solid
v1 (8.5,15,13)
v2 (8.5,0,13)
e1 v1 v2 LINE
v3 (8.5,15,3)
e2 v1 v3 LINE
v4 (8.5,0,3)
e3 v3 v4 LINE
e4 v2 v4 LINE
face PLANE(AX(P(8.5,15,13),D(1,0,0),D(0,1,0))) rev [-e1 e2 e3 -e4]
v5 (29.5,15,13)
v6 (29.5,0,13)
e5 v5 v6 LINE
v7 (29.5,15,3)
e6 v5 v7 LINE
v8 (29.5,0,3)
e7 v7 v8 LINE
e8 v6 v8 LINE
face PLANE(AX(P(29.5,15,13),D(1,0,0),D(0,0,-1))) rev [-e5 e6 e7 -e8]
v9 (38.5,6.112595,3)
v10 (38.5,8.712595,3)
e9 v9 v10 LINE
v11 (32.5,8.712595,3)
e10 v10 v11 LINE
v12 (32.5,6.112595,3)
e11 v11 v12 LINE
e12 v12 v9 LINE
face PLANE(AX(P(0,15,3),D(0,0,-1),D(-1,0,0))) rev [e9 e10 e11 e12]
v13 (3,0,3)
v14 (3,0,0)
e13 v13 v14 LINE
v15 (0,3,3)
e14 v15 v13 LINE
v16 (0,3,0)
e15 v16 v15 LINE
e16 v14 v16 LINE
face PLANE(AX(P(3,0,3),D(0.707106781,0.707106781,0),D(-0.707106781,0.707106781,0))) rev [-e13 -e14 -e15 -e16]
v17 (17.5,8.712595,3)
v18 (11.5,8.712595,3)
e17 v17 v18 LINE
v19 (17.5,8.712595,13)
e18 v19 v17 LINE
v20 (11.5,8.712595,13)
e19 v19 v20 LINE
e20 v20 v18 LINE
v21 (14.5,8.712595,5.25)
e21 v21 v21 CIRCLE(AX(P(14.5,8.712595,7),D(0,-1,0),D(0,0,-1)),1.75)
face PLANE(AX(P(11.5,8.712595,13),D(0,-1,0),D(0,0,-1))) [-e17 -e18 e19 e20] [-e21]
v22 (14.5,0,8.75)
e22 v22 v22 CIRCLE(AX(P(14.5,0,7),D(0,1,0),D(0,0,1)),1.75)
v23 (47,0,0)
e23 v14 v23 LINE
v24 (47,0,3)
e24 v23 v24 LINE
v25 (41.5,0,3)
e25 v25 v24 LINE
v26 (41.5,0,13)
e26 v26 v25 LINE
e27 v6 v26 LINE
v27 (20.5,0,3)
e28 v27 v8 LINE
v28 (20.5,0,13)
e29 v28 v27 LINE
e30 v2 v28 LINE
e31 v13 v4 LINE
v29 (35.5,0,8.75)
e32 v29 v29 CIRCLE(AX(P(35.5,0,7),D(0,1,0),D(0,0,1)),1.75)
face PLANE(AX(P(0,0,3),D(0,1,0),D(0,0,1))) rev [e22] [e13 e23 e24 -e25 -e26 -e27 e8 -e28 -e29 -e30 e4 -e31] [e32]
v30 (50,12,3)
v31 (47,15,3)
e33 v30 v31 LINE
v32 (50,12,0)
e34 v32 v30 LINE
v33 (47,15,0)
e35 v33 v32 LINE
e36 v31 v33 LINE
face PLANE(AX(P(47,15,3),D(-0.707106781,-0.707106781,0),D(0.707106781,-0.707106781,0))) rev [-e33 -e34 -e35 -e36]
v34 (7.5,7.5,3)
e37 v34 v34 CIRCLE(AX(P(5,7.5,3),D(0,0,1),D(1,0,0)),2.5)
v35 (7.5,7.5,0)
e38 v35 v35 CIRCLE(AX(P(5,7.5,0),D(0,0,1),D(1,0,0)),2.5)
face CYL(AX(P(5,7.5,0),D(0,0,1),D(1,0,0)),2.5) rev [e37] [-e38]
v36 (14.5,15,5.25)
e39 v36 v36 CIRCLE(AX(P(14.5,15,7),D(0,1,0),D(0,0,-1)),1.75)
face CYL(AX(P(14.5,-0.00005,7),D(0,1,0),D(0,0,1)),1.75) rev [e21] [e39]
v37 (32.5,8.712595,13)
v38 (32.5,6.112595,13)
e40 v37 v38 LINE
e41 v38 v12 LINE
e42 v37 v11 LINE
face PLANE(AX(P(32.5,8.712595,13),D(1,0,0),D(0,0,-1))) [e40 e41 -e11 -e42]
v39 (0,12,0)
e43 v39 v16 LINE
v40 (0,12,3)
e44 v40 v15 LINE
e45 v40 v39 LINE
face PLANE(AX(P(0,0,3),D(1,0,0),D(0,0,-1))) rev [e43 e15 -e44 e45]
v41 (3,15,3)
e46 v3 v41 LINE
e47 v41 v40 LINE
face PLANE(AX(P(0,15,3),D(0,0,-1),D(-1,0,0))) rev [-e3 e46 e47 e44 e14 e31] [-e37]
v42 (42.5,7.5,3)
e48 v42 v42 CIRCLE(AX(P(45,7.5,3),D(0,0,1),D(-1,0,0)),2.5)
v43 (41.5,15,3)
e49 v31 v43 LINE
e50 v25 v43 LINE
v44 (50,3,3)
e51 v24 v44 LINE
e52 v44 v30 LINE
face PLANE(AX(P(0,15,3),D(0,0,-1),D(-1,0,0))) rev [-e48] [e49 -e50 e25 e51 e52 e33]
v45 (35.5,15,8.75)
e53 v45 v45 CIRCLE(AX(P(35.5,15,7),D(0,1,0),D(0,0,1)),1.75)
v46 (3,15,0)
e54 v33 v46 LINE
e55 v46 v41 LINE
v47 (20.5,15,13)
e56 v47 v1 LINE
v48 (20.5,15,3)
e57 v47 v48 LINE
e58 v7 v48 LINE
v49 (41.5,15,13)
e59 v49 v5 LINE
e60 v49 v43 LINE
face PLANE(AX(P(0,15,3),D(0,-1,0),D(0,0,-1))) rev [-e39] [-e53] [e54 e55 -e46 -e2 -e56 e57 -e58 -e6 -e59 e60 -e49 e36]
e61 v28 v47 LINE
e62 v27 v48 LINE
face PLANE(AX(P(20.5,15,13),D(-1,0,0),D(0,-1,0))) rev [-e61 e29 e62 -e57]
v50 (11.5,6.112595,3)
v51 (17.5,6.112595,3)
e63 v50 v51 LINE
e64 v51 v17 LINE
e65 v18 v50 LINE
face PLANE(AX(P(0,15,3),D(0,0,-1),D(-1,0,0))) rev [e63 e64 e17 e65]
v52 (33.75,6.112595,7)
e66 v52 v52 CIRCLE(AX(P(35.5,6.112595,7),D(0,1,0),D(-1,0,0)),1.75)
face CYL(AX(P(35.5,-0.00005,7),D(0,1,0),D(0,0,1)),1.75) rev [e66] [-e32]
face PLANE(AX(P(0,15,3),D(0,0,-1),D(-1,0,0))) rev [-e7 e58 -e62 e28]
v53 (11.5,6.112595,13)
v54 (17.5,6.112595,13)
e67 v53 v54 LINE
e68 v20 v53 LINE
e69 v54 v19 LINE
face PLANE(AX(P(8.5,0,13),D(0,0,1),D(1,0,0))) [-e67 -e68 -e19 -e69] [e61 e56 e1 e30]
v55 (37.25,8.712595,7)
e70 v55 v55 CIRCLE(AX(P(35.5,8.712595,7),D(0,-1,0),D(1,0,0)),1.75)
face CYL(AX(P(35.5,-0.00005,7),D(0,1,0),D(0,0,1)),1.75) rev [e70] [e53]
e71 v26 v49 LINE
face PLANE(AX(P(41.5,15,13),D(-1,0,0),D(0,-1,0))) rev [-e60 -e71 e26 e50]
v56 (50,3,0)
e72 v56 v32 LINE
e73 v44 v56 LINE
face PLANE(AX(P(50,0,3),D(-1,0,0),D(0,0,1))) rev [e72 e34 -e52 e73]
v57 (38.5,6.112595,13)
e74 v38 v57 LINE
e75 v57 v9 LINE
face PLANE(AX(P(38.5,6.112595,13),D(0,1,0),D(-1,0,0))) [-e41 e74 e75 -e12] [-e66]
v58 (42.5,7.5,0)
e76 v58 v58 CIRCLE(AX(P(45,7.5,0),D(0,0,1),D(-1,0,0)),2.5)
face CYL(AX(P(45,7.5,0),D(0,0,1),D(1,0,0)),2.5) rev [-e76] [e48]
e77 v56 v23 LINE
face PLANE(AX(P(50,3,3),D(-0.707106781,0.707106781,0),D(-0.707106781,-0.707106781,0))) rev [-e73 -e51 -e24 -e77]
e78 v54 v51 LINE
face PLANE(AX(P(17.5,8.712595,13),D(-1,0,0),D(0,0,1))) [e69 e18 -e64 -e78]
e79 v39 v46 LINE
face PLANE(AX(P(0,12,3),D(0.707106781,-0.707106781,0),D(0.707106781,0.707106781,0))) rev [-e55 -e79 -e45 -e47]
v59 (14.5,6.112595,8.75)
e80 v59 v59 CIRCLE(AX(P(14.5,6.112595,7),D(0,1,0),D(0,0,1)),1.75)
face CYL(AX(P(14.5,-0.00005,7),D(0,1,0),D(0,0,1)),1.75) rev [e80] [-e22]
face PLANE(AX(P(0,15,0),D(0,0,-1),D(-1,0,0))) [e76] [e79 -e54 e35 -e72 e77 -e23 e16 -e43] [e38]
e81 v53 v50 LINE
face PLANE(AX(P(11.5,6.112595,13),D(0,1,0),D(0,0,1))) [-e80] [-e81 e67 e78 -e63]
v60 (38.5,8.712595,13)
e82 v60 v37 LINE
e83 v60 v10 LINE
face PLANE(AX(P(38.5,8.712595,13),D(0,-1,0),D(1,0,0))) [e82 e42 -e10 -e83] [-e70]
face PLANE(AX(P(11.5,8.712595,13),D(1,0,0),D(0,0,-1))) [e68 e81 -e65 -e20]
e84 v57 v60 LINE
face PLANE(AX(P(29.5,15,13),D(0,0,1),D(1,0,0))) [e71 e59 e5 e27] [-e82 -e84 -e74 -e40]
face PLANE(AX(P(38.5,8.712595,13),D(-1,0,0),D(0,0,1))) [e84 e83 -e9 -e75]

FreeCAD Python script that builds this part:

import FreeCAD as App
import Part
import Sketcher
Q = App.Units.Quantity


def edges_at(feature, points):
    """Names of the edges that pass closest to the given points."""
    edges = feature.Shape.Edges
    near = lambda p: min(range(len(edges)), key=lambda i: edges[i].distToShape(Part.Vertex(*p))[0])
    return sorted({f"Edge{near(p) + 1}" for p in points})

doc = App.newDocument("Part")
params = doc.addObject("Spreadsheet::Sheet", "Params")
for row, (alias, value) in enumerate([
    ("sketch1_width", "50 mm"),
    ("sketch1_height", "15 mm"),
    ("pad1_length", "3 mm"),
    ("sketch2_diameter", "5 mm"),
    ("sketch3_width", "12 mm"),
    ("sketch3_width2", "6 mm"),
    ("sketch3_height", "15 mm"),
    ("sketch3_height2", "2.6 mm"),
    ("pad2_length", "10 mm"),
    ("sketch4_diameter", "3.5 mm"),
    ("chamfer_size", "3 mm"),
], start=1):
    params.set(f"A{row}", alias)
    params.set(f"B{row}", "=" + value)
    params.setAlias(f"B{row}", alias)

body = doc.addObject("PartDesign::Body", "Body")

# Sketch on XY plane
sketch1 = body.newObject("Sketcher::SketchObject", "Sketch")
sketch1.AttachmentSupport = (doc.getObject("XY_Plane"), [""])
sketch1.MapMode = "FlatFace"
sketch1.addGeometry(Part.LineSegment(App.Vector(0, 15, 0), App.Vector(0, 0, 0)), False)
sketch1.addGeometry(Part.LineSegment(App.Vector(0, 0, 0), App.Vector(50, 0, 0)), False)
sketch1.addGeometry(Part.LineSegment(App.Vector(50, 0, 0), App.Vector(50, 15, 0)), False)
sketch1.addGeometry(Part.LineSegment(App.Vector(50, 15, 0), App.Vector(0, 15, 0)), False)
sketch1.addConstraint(Sketcher.Constraint("Coincident", 0, 2, 1, 1))
sketch1.addConstraint(Sketcher.Constraint("Coincident", 1, 2, 2, 1))
sketch1.addConstraint(Sketcher.Constraint("Coincident", 2, 2, 3, 1))
sketch1.addConstraint(Sketcher.Constraint("Coincident", 3, 2, 0, 1))
sketch1.addConstraint(Sketcher.Constraint("Vertical", 0))
sketch1.addConstraint(Sketcher.Constraint("Horizontal", 1))
sketch1.addConstraint(Sketcher.Constraint("Vertical", 2))
sketch1.addConstraint(Sketcher.Constraint("Horizontal", 3))
sketch1.addConstraint(Sketcher.Constraint("Coincident", 0, 2, -1, 1))
sketch1.addConstraint(Sketcher.Constraint("DistanceX", 1, 1, 1, 2, Q("50 mm")))
sketch1.addConstraint(Sketcher.Constraint("DistanceY", 0, 2, 0, 1, Q("15 mm")))
sketch1.setExpression("Constraints[9]", "Params.sketch1_width")
sketch1.setExpression("Constraints[10]", "Params.sketch1_height")
pad1 = body.newObject("PartDesign::Pad", "Pad")
pad1.Profile = sketch1
pad1.setExpression("Length", "Params.pad1_length")

# Sketch on XY plane
sketch2 = body.newObject("Sketcher::SketchObject", "Sketch001")
sketch2.AttachmentSupport = (doc.getObject("XY_Plane"), [""])
sketch2.MapMode = "FlatFace"
sketch2.AttachmentOffset = App.Placement(App.Vector(0, 0, 3), App.Rotation())
sketch2.addGeometry(Part.Circle(App.Vector(5, 7.5, 0), App.Vector(0, 0, 1), 2.5), False)
sketch2.addGeometry(Part.Circle(App.Vector(45, 7.5, 0), App.Vector(0, 0, 1), 2.5), False)
sketch2.addConstraint(Sketcher.Constraint("Equal", 0, 1))
sketch2.addConstraint(Sketcher.Constraint("Horizontal", 0, 3, 1, 3))
sketch2.addConstraint(Sketcher.Constraint("Diameter", 0, Q("5 mm")))
sketch2.addConstraint(Sketcher.Constraint("DistanceX", -1, 1, 0, 3, Q("5 mm")))
sketch2.addConstraint(Sketcher.Constraint("DistanceX", -1, 1, 1, 3, Q("45 mm")))
sketch2.addConstraint(Sketcher.Constraint("DistanceY", -1, 1, 0, 3, Q("7.5 mm")))
sketch2.setExpression("Constraints[2]", "Params.sketch2_diameter")
pocket1 = body.newObject("PartDesign::Pocket", "Pocket")
pocket1.Profile = sketch2
pocket1.Type = "ThroughAll"

# Sketch on XY plane
sketch3 = body.newObject("Sketcher::SketchObject", "Sketch002")
sketch3.AttachmentSupport = (doc.getObject("XY_Plane"), [""])
sketch3.MapMode = "FlatFace"
sketch3.AttachmentOffset = App.Placement(App.Vector(0, 0, 3), App.Rotation())
sketch3.addGeometry(Part.LineSegment(App.Vector(8.5, 15, 0), App.Vector(8.5, 0, 0)), False)
sketch3.addGeometry(Part.LineSegment(App.Vector(8.5, 0, 0), App.Vector(20.5, 0, 0)), False)
sketch3.addGeometry(Part.LineSegment(App.Vector(20.5, 0, 0), App.Vector(20.5, 15, 0)), False)
sketch3.addGeometry(Part.LineSegment(App.Vector(20.5, 15, 0), App.Vector(8.5, 15, 0)), False)
sketch3.addGeometry(Part.LineSegment(App.Vector(17.5, 6.1, 0), App.Vector(11.5, 6.1, 0)), False)
sketch3.addGeometry(Part.LineSegment(App.Vector(11.5, 6.1, 0), App.Vector(11.5, 8.7, 0)), False)
sketch3.addGeometry(Part.LineSegment(App.Vector(11.5, 8.7, 0), App.Vector(17.5, 8.7, 0)), False)
sketch3.addGeometry(Part.LineSegment(App.Vector(17.5, 8.7, 0), App.Vector(17.5, 6.1, 0)), False)
sketch3.addGeometry(Part.LineSegment(App.Vector(29.5, 15, 0), App.Vector(29.5, 0, 0)), False)
sketch3.addGeometry(Part.LineSegment(App.Vector(29.5, 0, 0), App.Vector(41.5, 0, 0)), False)
sketch3.addGeometry(Part.LineSegment(App.Vector(41.5, 0, 0), App.Vector(41.5, 15, 0)), False)
sketch3.addGeometry(Part.LineSegment(App.Vector(41.5, 15, 0), App.Vector(29.5, 15, 0)), False)
sketch3.addGeometry(Part.LineSegment(App.Vector(38.5, 6.1, 0), App.Vector(32.5, 6.1, 0)), False)
sketch3.addGeometry(Part.LineSegment(App.Vector(32.5, 6.1, 0), App.Vector(32.5, 8.7, 0)), False)
sketch3.addGeometry(Part.LineSegment(App.Vector(32.5, 8.7, 0), App.Vector(38.5, 8.7, 0)), False)
sketch3.addGeometry(Part.LineSegment(App.Vector(38.5, 8.7, 0), App.Vector(38.5, 6.1, 0)), False)
sketch3.addConstraint(Sketcher.Constraint("Coincident", 0, 2, 1, 1))
sketch3.addConstraint(Sketcher.Constraint("Coincident", 1, 2, 2, 1))
sketch3.addConstraint(Sketcher.Constraint("Coincident", 2, 2, 3, 1))
sketch3.addConstraint(Sketcher.Constraint("Coincident", 3, 2, 0, 1))
sketch3.addConstraint(Sketcher.Constraint("Coincident", 4, 2, 5, 1))
sketch3.addConstraint(Sketcher.Constraint("Coincident", 5, 2, 6, 1))
sketch3.addConstraint(Sketcher.Constraint("Coincident", 6, 2, 7, 1))
sketch3.addConstraint(Sketcher.Constraint("Coincident", 7, 2, 4, 1))
sketch3.addConstraint(Sketcher.Constraint("Coincident", 8, 2, 9, 1))
sketch3.addConstraint(Sketcher.Constraint("Coincident", 9, 2, 10, 1))
sketch3.addConstraint(Sketcher.Constraint("Coincident", 10, 2, 11, 1))
sketch3.addConstraint(Sketcher.Constraint("Coincident", 11, 2, 8, 1))
sketch3.addConstraint(Sketcher.Constraint("Coincident", 12, 2, 13, 1))
sketch3.addConstraint(Sketcher.Constraint("Coincident", 13, 2, 14, 1))
sketch3.addConstraint(Sketcher.Constraint("Coincident", 14, 2, 15, 1))
sketch3.addConstraint(Sketcher.Constraint("Coincident", 15, 2, 12, 1))
sketch3.addConstraint(Sketcher.Constraint("Vertical", 0))
sketch3.addConstraint(Sketcher.Constraint("Horizontal", 1))
sketch3.addConstraint(Sketcher.Constraint("Vertical", 2))
sketch3.addConstraint(Sketcher.Constraint("Horizontal", 3))
sketch3.addConstraint(Sketcher.Constraint("Horizontal", 4))
sketch3.addConstraint(Sketcher.Constraint("Vertical", 5))
sketch3.addConstraint(Sketcher.Constraint("Horizontal", 6))
sketch3.addConstraint(Sketcher.Constraint("Vertical", 7))
sketch3.addConstraint(Sketcher.Constraint("Vertical", 8))
sketch3.addConstraint(Sketcher.Constraint("Horizontal", 9))
sketch3.addConstraint(Sketcher.Constraint("Vertical", 10))
sketch3.addConstraint(Sketcher.Constraint("Horizontal", 11))
sketch3.addConstraint(Sketcher.Constraint("Horizontal", 12))
sketch3.addConstraint(Sketcher.Constraint("Vertical", 13))
sketch3.addConstraint(Sketcher.Constraint("Horizontal", 14))
sketch3.addConstraint(Sketcher.Constraint("Vertical", 15))
sketch3.addConstraint(Sketcher.Constraint("PointOnObject", 0, 2, -1))
sketch3.addConstraint(Sketcher.Constraint("PointOnObject", 8, 2, -1))
sketch3.addConstraint(Sketcher.Constraint("Horizontal", 3, 2, 10, 2))
sketch3.addConstraint(Sketcher.Constraint("Horizontal", 7, 2, 12, 2))
sketch3.addConstraint(Sketcher.Constraint("Horizontal", 6, 2, 13, 2))
sketch3.addConstraint(Sketcher.Constraint("Equal", 3, 9))
sketch3.addConstraint(Sketcher.Constraint("Equal", 6, 12))
sketch3.addConstraint(Sketcher.Constraint("DistanceX", 1, 1, 1, 2, Q("12 mm")))
sketch3.addConstraint(Sketcher.Constraint("DistanceX", 4, 2, 4, 1, Q("6 mm")))
sketch3.addConstraint(Sketcher.Constraint("DistanceY", 0, 2, 0, 1, Q("15 mm")))
sketch3.addConstraint(Sketcher.Constraint("DistanceY", 5, 1, 5, 2, Q("2.6 mm")))
sketch3.addConstraint(Sketcher.Constraint("DistanceX", 0, 2, 4, 2, Q("3 mm")))
sketch3.addConstraint(Sketcher.Constraint("DistanceX", 1, 2, 8, 2, Q("9 mm")))
sketch3.addConstraint(Sketcher.Constraint("DistanceX", 8, 2, 12, 2, Q("3 mm")))
sketch3.addConstraint(Sketcher.Constraint("DistanceX", -1, 1, 0, 2, Q("8.5 mm")))
sketch3.addConstraint(Sketcher.Constraint("DistanceY", -1, 1, 4, 2, Q("6.112595 mm")))
sketch3.setExpression("Constraints[39]", "Params.sketch3_width")
sketch3.setExpression("Constraints[40]", "Params.sketch3_width2")
sketch3.setExpression("Constraints[41]", "Params.sketch3_height")
sketch3.setExpression("Constraints[42]", "Params.sketch3_height2")
pad2 = body.newObject("PartDesign::Pad", "Pad001")
pad2.Profile = sketch3
pad2.setExpression("Length", "Params.pad2_length")

# Sketch on XZ plane
sketch4 = body.newObject("Sketcher::SketchObject", "Sketch003")
sketch4.AttachmentSupport = (doc.getObject("XZ_Plane"), [""])
sketch4.MapMode = "FlatFace"
sketch4.AttachmentOffset = App.Placement(App.Vector(0, 0, -15), App.Rotation())
sketch4.addGeometry(Part.Circle(App.Vector(35.5, 7, 0), App.Vector(0, 0, 1), 1.8), False)
sketch4.addGeometry(Part.Circle(App.Vector(14.5, 7, 0), App.Vector(0, 0, 1), 1.8), False)
sketch4.addConstraint(Sketcher.Constraint("Equal", 0, 1))
sketch4.addConstraint(Sketcher.Constraint("Horizontal", 0, 3, 1, 3))
sketch4.addConstraint(Sketcher.Constraint("Diameter", 0, Q("3.5 mm")))
sketch4.addConstraint(Sketcher.Constraint("DistanceY", -1, 1, 0, 3, Q("7 mm")))
sketch4.addConstraint(Sketcher.Constraint("DistanceX", 1, 3, 0, 3, Q("21 mm")))
sketch4.addConstraint(Sketcher.Constraint("DistanceX", -1, 1, 0, 3, Q("35.5 mm")))
sketch4.setExpression("Constraints[2]", "Params.sketch4_diameter")
pocket2 = body.newObject("PartDesign::Pocket", "Pocket001")
pocket2.Profile = sketch4
pocket2.Type = "ThroughAll"
pocket2.Reversed = True
doc.recompute()

chamfer = body.newObject("PartDesign::Chamfer", "Chamfer")
chamfer.Base = (pocket2, edges_at(pocket2, [
    (50, 15, 1.5),
    (50, 0, 1.5),
    (0, 0, 1.5),
    (0, 15, 1.5),
]))
chamfer.setExpression("Size", "Params.chamfer_size")

doc.recompute()
